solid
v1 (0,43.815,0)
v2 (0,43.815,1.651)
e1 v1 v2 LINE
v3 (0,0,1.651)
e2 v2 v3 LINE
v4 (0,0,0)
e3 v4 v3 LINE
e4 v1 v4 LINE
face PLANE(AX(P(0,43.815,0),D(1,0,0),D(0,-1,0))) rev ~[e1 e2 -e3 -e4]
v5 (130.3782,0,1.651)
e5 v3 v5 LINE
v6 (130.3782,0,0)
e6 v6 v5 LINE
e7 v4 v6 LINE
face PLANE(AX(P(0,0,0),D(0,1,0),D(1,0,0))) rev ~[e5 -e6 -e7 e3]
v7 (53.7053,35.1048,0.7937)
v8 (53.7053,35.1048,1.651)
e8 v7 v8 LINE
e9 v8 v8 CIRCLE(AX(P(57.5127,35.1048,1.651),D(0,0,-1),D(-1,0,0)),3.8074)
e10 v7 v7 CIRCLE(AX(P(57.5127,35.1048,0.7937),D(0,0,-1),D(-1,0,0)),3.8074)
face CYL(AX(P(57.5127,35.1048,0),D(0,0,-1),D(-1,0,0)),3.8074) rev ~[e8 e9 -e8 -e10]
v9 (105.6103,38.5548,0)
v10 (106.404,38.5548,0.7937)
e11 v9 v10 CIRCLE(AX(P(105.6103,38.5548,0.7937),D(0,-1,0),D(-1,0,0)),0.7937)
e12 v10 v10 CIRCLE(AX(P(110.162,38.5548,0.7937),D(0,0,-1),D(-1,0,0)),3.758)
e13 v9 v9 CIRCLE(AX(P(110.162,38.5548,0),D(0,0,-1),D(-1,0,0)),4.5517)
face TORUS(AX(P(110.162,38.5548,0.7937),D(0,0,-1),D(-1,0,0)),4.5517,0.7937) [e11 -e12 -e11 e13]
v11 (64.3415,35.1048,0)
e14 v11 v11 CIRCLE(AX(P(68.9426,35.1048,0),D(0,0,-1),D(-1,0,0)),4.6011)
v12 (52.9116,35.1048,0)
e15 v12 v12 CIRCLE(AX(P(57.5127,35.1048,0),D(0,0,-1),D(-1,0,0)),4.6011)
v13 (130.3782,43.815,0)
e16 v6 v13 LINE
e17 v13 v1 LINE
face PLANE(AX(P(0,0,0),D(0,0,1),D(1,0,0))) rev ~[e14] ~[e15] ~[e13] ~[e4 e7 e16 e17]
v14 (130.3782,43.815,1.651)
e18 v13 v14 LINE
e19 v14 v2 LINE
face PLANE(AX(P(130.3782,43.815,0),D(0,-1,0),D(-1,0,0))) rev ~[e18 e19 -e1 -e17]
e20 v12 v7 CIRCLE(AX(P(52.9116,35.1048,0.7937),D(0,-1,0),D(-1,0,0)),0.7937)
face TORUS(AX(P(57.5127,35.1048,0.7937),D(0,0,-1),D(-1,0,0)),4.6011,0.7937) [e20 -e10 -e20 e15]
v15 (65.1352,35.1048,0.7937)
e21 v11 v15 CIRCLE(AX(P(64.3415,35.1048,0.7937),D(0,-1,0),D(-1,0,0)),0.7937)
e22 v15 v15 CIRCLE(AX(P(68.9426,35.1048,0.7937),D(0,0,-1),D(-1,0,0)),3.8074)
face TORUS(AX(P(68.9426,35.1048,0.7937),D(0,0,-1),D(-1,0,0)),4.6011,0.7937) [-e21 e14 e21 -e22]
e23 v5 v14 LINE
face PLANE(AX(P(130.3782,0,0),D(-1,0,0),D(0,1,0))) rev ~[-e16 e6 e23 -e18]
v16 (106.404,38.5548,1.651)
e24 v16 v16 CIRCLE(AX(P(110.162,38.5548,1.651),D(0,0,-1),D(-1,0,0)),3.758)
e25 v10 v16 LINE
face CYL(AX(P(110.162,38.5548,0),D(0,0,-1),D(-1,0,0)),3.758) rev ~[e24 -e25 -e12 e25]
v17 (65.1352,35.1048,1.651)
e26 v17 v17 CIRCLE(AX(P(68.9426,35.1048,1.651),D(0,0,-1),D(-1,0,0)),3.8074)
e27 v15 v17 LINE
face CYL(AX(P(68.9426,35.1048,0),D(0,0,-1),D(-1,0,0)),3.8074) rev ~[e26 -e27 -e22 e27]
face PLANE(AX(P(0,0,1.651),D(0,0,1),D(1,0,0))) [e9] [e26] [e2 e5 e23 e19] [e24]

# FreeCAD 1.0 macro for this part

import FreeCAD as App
import Part
import Sketcher
from FreeCAD import Vector
Q = App.Units.Quantity


def edges_at(feature, points):
    """Names of the edges that pass closest to the given points."""
    edges = feature.Shape.Edges
    near = lambda p: min(range(len(edges)), key=lambda i: edges[i].distToShape(Part.Vertex(*p))[0])
    return sorted({f"Edge{near(p) + 1}" for p in points})


def add_polygon(sketch, points):
    """Adds a closed chain of lines whose ends are joined by coincident constraints."""
    first, n = sketch.GeometryCount, len(points)
    for a, b in zip(points, points[1:] + points[:1]):
        sketch.addGeometry(Part.LineSegment(App.Vector(*a, 0), App.Vector(*b, 0)), False)
    for i in range(n):
        sketch.addConstraint(Sketcher.Constraint("Coincident", first + i, 2, first + (i + 1) % n, 1))

doc = App.newDocument("Part")
body = doc.addObject("PartDesign::Body", "Body")

sketch1 = doc.addObject("Sketcher::SketchObject", "Sketch")
body.addObject(sketch1)
sketch1.AttachmentSupport = (doc.XY_Plane, [""])
sketch1.MapMode = "FlatFace"
add_polygon(sketch1, [(0, 44), (0, 0), (130, 0), (130, 44)])
sketch1.addConstraint([
    Sketcher.Constraint("Vertical", 0),
    Sketcher.Constraint("Horizontal", 1),
    Sketcher.Constraint("Vertical", 2),
    Sketcher.Constraint("Horizontal", 3),
    Sketcher.Constraint("Coincident", 0, 2, -1, 1),
    Sketcher.Constraint("DistanceX", 1, 1, 1, 2, Q("5.133 in")),
    Sketcher.Constraint("DistanceY", 0, 2, 0, 1, Q("1.725 in")),
])
pad1 = doc.addObject("PartDesign::Pad", "Pad")
body.addObject(pad1)
pad1.Profile = sketch1
pad1.Length = Q("0.065 in")

sketch2 = doc.addObject("Sketcher::SketchObject", "Sketch001")
body.addObject(sketch2)
sketch2.AttachmentSupport = (doc.XY_Plane, [""])
sketch2.MapMode = "FlatFace"
sketch2.addGeometry([
    Part.Circle(Vector(110.2, 38.6, 0), Vector(0, 0, 1), 3.8),
    Part.Circle(Vector(68.9, 35.1, 0), Vector(0, 0, 1), 3.8),
    Part.Circle(Vector(57.5, 35.1, 0), Vector(0, 0, 1), 3.8),
], False)
sketch2.addConstraint([
    Sketcher.Constraint("Equal", 1, 2),
    Sketcher.Constraint("Horizontal", 1, 3, 2, 3),
    Sketcher.Constraint("Diameter", 0, Q("0.2959 in")),
    Sketcher.Constraint("Diameter", 1, Q("0.2998 in")),
    Sketcher.Constraint("DistanceX", 2, 3, 1, 3, Q("0.45 in")),
    Sketcher.Constraint("DistanceY", -1, 1, 0, 3, Q("1.5179 in")),
    Sketcher.Constraint("DistanceX", 1, 3, 0, 3, Q("1.6228 in")),
    Sketcher.Constraint("DistanceX", -1, 1, 0, 3, Q("110.162 mm")),
    Sketcher.Constraint("DistanceY", -1, 1, 1, 3, Q("35.1048 mm")),
])
pocket1 = doc.addObject("PartDesign::Pocket", "Pocket")
body.addObject(pocket1)
pocket1.Profile = sketch2
pocket1.Length = Q("0.065 in")
pocket1.Reversed = True
doc.recompute()

fillet = doc.addObject("PartDesign::Fillet", "Fillet")
body.addObject(fillet)
fillet.Base = (pocket1, edges_at(pocket1, [(113.92, 38.555, 0), (72.75, 35.105, 0), (61.32, 35.105, 0)]))
fillet.Radius = Q("0.031248 in")

doc.recompute()
